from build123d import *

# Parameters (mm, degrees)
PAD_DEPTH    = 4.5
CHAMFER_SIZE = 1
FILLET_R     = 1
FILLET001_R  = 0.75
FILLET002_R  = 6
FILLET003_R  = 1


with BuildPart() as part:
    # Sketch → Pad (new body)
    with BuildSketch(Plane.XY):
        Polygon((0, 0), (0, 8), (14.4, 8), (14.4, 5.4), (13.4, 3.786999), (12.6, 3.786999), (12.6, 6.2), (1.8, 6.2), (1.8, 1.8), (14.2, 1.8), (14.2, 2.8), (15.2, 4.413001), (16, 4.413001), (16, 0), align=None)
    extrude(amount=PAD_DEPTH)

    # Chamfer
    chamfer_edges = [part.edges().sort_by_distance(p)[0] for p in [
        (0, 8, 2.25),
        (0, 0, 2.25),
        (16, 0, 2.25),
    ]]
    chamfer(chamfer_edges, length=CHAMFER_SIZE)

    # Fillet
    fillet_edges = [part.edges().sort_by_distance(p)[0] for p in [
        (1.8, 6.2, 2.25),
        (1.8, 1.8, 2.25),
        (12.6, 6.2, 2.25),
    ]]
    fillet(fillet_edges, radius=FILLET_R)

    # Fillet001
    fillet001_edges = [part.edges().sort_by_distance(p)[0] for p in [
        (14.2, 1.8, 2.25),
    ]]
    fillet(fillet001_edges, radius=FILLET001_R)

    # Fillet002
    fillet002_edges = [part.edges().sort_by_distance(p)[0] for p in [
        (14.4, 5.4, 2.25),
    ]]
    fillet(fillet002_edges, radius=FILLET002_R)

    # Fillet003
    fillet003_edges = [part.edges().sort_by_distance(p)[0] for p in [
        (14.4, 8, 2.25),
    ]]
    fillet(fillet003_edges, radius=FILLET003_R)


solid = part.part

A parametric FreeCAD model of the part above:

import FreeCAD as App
import Part
import Sketcher

V = App.Vector
Q = App.Units.Quantity


def edges_at(feature, points):
    """Names of the edges that pass closest to the given points."""
    edges = feature.Shape.Edges
    near = lambda p: min(range(len(edges)), key=lambda i: edges[i].distToShape(Part.Vertex(*p))[0])
    return sorted({f"Edge{near(p) + 1}" for p in points})


def add_polygon(sketch, points):
    """Adds a closed chain of lines whose ends are joined by coincident constraints."""
    first, n = sketch.GeometryCount, len(points)
    for a, b in zip(points, points[1:] + points[:1]):
        sketch.addGeometry(Part.LineSegment(App.Vector(*a, 0), App.Vector(*b, 0)), False)
    for i in range(n):
        sketch.addConstraint(Sketcher.Constraint("Coincident", first + i, 2, first + (i + 1) % n, 1))

doc = App.newDocument("Part")
body = doc.addObject("PartDesign::Body", "Body")

sketch1 = body.newObject("Sketcher::SketchObject", "Sketch")
sketch1.AttachmentSupport = (doc.getObject("XY_Plane"), [""])
sketch1.MapMode = "FlatFace"
add_polygon(sketch1, [(0, 8), (0, 0), (16, 0), (16, 4.4), (15.2, 4.4), (14.2, 2.8), (14.2, 1.8), (1.8, 1.8), (1.8, 6.2), (12.6, 6.2), (12.6, 3.8), (13.4, 3.8), (14.4, 5.4), (14.4, 8)])
sketch1.addConstraint([
    Sketcher.Constraint("Vertical", 0),
    Sketcher.Constraint("Horizontal", 1),
    Sketcher.Constraint("Vertical", 2),
    Sketcher.Constraint("Horizontal", 3),
    Sketcher.Constraint("Vertical", 5),
    Sketcher.Constraint("Horizontal", 6),
    Sketcher.Constraint("Vertical", 7),
    Sketcher.Constraint("Horizontal", 8),
    Sketcher.Constraint("Vertical", 9),
    Sketcher.Constraint("Horizontal", 10),
    Sketcher.Constraint("Vertical", 12),
    Sketcher.Constraint("Horizontal", 13),
    Sketcher.Constraint("Coincident", 0, 2, -1, 1),
    Sketcher.Constraint("Parallel", 4, 11),
    Sketcher.Constraint("Equal", 3, 10),
    Sketcher.Constraint("Equal", 4, 11),
    Sketcher.Constraint("DistanceX", 1, 1, 1, 2, Q("16 mm")),
    Sketcher.Constraint("DistanceY", 0, 2, 0, 1, Q("8 mm")),
    Sketcher.Constraint("DistanceY", 5, 2, 5, 1, Q("1 mm")),
    Sketcher.Constraint("DistanceX", 3, 2, 3, 1, Q("0.8 mm")),
    Sketcher.Constraint("DistanceX", 6, 2, 6, 1, Q("12.4 mm")),
    Sketcher.Constraint("DistanceX", 8, 1, 8, 2, Q("10.8 mm")),
    Sketcher.Constraint("DistanceY", 7, 1, 7, 2, Q("4.4 mm")),
    Sketcher.Constraint("DistanceY", 12, 1, 12, 2, Q("2.6 mm")),
    Sketcher.Constraint("DistanceX", 4, 2, 3, 2, Q("1 mm")),
    Sketcher.Constraint("DistanceY", -1, 1, 4, 2, Q("2.8 mm")),
    Sketcher.Constraint("DistanceY", 2, 1, 2, 2, Q("4.413001 mm")),
])
pad1 = body.newObject("PartDesign::Pad", "Pad")
pad1.Profile = sketch1
pad1.Length = 4.5
doc.recompute()

chamfer = body.newObject("PartDesign::Chamfer", "Chamfer")
chamfer.Base = (pad1, edges_at(pad1, [(0, 8, 2.25), (0, 0, 2.25), (16, 0, 2.25)]))
chamfer.Size = 1
doc.recompute()

fillet = body.newObject("PartDesign::Fillet", "Fillet")
fillet.Base = (chamfer, edges_at(chamfer, [(1.8, 6.2, 2.25), (1.8, 1.8, 2.25), (12.6, 6.2, 2.25)]))
fillet.Radius = 1
doc.recompute()

fillet2 = body.newObject("PartDesign::Fillet", "Fillet001")
fillet2.Base = (fillet, edges_at(fillet, [(14.2, 1.8, 2.25)]))
fillet2.Radius = 0.75
doc.recompute()

fillet3 = body.newObject("PartDesign::Fillet", "Fillet002")
fillet3.Base = (fillet2, edges_at(fillet2, [(14.4, 5.4, 2.25)]))
fillet3.Radius = 6
doc.recompute()

fillet4 = body.newObject("PartDesign::Fillet", "Fillet003")
fillet4.Base = (fillet3, edges_at(fillet3, [(14.4, 8, 2.25)]))
fillet4.Radius = 1

doc.recompute()
